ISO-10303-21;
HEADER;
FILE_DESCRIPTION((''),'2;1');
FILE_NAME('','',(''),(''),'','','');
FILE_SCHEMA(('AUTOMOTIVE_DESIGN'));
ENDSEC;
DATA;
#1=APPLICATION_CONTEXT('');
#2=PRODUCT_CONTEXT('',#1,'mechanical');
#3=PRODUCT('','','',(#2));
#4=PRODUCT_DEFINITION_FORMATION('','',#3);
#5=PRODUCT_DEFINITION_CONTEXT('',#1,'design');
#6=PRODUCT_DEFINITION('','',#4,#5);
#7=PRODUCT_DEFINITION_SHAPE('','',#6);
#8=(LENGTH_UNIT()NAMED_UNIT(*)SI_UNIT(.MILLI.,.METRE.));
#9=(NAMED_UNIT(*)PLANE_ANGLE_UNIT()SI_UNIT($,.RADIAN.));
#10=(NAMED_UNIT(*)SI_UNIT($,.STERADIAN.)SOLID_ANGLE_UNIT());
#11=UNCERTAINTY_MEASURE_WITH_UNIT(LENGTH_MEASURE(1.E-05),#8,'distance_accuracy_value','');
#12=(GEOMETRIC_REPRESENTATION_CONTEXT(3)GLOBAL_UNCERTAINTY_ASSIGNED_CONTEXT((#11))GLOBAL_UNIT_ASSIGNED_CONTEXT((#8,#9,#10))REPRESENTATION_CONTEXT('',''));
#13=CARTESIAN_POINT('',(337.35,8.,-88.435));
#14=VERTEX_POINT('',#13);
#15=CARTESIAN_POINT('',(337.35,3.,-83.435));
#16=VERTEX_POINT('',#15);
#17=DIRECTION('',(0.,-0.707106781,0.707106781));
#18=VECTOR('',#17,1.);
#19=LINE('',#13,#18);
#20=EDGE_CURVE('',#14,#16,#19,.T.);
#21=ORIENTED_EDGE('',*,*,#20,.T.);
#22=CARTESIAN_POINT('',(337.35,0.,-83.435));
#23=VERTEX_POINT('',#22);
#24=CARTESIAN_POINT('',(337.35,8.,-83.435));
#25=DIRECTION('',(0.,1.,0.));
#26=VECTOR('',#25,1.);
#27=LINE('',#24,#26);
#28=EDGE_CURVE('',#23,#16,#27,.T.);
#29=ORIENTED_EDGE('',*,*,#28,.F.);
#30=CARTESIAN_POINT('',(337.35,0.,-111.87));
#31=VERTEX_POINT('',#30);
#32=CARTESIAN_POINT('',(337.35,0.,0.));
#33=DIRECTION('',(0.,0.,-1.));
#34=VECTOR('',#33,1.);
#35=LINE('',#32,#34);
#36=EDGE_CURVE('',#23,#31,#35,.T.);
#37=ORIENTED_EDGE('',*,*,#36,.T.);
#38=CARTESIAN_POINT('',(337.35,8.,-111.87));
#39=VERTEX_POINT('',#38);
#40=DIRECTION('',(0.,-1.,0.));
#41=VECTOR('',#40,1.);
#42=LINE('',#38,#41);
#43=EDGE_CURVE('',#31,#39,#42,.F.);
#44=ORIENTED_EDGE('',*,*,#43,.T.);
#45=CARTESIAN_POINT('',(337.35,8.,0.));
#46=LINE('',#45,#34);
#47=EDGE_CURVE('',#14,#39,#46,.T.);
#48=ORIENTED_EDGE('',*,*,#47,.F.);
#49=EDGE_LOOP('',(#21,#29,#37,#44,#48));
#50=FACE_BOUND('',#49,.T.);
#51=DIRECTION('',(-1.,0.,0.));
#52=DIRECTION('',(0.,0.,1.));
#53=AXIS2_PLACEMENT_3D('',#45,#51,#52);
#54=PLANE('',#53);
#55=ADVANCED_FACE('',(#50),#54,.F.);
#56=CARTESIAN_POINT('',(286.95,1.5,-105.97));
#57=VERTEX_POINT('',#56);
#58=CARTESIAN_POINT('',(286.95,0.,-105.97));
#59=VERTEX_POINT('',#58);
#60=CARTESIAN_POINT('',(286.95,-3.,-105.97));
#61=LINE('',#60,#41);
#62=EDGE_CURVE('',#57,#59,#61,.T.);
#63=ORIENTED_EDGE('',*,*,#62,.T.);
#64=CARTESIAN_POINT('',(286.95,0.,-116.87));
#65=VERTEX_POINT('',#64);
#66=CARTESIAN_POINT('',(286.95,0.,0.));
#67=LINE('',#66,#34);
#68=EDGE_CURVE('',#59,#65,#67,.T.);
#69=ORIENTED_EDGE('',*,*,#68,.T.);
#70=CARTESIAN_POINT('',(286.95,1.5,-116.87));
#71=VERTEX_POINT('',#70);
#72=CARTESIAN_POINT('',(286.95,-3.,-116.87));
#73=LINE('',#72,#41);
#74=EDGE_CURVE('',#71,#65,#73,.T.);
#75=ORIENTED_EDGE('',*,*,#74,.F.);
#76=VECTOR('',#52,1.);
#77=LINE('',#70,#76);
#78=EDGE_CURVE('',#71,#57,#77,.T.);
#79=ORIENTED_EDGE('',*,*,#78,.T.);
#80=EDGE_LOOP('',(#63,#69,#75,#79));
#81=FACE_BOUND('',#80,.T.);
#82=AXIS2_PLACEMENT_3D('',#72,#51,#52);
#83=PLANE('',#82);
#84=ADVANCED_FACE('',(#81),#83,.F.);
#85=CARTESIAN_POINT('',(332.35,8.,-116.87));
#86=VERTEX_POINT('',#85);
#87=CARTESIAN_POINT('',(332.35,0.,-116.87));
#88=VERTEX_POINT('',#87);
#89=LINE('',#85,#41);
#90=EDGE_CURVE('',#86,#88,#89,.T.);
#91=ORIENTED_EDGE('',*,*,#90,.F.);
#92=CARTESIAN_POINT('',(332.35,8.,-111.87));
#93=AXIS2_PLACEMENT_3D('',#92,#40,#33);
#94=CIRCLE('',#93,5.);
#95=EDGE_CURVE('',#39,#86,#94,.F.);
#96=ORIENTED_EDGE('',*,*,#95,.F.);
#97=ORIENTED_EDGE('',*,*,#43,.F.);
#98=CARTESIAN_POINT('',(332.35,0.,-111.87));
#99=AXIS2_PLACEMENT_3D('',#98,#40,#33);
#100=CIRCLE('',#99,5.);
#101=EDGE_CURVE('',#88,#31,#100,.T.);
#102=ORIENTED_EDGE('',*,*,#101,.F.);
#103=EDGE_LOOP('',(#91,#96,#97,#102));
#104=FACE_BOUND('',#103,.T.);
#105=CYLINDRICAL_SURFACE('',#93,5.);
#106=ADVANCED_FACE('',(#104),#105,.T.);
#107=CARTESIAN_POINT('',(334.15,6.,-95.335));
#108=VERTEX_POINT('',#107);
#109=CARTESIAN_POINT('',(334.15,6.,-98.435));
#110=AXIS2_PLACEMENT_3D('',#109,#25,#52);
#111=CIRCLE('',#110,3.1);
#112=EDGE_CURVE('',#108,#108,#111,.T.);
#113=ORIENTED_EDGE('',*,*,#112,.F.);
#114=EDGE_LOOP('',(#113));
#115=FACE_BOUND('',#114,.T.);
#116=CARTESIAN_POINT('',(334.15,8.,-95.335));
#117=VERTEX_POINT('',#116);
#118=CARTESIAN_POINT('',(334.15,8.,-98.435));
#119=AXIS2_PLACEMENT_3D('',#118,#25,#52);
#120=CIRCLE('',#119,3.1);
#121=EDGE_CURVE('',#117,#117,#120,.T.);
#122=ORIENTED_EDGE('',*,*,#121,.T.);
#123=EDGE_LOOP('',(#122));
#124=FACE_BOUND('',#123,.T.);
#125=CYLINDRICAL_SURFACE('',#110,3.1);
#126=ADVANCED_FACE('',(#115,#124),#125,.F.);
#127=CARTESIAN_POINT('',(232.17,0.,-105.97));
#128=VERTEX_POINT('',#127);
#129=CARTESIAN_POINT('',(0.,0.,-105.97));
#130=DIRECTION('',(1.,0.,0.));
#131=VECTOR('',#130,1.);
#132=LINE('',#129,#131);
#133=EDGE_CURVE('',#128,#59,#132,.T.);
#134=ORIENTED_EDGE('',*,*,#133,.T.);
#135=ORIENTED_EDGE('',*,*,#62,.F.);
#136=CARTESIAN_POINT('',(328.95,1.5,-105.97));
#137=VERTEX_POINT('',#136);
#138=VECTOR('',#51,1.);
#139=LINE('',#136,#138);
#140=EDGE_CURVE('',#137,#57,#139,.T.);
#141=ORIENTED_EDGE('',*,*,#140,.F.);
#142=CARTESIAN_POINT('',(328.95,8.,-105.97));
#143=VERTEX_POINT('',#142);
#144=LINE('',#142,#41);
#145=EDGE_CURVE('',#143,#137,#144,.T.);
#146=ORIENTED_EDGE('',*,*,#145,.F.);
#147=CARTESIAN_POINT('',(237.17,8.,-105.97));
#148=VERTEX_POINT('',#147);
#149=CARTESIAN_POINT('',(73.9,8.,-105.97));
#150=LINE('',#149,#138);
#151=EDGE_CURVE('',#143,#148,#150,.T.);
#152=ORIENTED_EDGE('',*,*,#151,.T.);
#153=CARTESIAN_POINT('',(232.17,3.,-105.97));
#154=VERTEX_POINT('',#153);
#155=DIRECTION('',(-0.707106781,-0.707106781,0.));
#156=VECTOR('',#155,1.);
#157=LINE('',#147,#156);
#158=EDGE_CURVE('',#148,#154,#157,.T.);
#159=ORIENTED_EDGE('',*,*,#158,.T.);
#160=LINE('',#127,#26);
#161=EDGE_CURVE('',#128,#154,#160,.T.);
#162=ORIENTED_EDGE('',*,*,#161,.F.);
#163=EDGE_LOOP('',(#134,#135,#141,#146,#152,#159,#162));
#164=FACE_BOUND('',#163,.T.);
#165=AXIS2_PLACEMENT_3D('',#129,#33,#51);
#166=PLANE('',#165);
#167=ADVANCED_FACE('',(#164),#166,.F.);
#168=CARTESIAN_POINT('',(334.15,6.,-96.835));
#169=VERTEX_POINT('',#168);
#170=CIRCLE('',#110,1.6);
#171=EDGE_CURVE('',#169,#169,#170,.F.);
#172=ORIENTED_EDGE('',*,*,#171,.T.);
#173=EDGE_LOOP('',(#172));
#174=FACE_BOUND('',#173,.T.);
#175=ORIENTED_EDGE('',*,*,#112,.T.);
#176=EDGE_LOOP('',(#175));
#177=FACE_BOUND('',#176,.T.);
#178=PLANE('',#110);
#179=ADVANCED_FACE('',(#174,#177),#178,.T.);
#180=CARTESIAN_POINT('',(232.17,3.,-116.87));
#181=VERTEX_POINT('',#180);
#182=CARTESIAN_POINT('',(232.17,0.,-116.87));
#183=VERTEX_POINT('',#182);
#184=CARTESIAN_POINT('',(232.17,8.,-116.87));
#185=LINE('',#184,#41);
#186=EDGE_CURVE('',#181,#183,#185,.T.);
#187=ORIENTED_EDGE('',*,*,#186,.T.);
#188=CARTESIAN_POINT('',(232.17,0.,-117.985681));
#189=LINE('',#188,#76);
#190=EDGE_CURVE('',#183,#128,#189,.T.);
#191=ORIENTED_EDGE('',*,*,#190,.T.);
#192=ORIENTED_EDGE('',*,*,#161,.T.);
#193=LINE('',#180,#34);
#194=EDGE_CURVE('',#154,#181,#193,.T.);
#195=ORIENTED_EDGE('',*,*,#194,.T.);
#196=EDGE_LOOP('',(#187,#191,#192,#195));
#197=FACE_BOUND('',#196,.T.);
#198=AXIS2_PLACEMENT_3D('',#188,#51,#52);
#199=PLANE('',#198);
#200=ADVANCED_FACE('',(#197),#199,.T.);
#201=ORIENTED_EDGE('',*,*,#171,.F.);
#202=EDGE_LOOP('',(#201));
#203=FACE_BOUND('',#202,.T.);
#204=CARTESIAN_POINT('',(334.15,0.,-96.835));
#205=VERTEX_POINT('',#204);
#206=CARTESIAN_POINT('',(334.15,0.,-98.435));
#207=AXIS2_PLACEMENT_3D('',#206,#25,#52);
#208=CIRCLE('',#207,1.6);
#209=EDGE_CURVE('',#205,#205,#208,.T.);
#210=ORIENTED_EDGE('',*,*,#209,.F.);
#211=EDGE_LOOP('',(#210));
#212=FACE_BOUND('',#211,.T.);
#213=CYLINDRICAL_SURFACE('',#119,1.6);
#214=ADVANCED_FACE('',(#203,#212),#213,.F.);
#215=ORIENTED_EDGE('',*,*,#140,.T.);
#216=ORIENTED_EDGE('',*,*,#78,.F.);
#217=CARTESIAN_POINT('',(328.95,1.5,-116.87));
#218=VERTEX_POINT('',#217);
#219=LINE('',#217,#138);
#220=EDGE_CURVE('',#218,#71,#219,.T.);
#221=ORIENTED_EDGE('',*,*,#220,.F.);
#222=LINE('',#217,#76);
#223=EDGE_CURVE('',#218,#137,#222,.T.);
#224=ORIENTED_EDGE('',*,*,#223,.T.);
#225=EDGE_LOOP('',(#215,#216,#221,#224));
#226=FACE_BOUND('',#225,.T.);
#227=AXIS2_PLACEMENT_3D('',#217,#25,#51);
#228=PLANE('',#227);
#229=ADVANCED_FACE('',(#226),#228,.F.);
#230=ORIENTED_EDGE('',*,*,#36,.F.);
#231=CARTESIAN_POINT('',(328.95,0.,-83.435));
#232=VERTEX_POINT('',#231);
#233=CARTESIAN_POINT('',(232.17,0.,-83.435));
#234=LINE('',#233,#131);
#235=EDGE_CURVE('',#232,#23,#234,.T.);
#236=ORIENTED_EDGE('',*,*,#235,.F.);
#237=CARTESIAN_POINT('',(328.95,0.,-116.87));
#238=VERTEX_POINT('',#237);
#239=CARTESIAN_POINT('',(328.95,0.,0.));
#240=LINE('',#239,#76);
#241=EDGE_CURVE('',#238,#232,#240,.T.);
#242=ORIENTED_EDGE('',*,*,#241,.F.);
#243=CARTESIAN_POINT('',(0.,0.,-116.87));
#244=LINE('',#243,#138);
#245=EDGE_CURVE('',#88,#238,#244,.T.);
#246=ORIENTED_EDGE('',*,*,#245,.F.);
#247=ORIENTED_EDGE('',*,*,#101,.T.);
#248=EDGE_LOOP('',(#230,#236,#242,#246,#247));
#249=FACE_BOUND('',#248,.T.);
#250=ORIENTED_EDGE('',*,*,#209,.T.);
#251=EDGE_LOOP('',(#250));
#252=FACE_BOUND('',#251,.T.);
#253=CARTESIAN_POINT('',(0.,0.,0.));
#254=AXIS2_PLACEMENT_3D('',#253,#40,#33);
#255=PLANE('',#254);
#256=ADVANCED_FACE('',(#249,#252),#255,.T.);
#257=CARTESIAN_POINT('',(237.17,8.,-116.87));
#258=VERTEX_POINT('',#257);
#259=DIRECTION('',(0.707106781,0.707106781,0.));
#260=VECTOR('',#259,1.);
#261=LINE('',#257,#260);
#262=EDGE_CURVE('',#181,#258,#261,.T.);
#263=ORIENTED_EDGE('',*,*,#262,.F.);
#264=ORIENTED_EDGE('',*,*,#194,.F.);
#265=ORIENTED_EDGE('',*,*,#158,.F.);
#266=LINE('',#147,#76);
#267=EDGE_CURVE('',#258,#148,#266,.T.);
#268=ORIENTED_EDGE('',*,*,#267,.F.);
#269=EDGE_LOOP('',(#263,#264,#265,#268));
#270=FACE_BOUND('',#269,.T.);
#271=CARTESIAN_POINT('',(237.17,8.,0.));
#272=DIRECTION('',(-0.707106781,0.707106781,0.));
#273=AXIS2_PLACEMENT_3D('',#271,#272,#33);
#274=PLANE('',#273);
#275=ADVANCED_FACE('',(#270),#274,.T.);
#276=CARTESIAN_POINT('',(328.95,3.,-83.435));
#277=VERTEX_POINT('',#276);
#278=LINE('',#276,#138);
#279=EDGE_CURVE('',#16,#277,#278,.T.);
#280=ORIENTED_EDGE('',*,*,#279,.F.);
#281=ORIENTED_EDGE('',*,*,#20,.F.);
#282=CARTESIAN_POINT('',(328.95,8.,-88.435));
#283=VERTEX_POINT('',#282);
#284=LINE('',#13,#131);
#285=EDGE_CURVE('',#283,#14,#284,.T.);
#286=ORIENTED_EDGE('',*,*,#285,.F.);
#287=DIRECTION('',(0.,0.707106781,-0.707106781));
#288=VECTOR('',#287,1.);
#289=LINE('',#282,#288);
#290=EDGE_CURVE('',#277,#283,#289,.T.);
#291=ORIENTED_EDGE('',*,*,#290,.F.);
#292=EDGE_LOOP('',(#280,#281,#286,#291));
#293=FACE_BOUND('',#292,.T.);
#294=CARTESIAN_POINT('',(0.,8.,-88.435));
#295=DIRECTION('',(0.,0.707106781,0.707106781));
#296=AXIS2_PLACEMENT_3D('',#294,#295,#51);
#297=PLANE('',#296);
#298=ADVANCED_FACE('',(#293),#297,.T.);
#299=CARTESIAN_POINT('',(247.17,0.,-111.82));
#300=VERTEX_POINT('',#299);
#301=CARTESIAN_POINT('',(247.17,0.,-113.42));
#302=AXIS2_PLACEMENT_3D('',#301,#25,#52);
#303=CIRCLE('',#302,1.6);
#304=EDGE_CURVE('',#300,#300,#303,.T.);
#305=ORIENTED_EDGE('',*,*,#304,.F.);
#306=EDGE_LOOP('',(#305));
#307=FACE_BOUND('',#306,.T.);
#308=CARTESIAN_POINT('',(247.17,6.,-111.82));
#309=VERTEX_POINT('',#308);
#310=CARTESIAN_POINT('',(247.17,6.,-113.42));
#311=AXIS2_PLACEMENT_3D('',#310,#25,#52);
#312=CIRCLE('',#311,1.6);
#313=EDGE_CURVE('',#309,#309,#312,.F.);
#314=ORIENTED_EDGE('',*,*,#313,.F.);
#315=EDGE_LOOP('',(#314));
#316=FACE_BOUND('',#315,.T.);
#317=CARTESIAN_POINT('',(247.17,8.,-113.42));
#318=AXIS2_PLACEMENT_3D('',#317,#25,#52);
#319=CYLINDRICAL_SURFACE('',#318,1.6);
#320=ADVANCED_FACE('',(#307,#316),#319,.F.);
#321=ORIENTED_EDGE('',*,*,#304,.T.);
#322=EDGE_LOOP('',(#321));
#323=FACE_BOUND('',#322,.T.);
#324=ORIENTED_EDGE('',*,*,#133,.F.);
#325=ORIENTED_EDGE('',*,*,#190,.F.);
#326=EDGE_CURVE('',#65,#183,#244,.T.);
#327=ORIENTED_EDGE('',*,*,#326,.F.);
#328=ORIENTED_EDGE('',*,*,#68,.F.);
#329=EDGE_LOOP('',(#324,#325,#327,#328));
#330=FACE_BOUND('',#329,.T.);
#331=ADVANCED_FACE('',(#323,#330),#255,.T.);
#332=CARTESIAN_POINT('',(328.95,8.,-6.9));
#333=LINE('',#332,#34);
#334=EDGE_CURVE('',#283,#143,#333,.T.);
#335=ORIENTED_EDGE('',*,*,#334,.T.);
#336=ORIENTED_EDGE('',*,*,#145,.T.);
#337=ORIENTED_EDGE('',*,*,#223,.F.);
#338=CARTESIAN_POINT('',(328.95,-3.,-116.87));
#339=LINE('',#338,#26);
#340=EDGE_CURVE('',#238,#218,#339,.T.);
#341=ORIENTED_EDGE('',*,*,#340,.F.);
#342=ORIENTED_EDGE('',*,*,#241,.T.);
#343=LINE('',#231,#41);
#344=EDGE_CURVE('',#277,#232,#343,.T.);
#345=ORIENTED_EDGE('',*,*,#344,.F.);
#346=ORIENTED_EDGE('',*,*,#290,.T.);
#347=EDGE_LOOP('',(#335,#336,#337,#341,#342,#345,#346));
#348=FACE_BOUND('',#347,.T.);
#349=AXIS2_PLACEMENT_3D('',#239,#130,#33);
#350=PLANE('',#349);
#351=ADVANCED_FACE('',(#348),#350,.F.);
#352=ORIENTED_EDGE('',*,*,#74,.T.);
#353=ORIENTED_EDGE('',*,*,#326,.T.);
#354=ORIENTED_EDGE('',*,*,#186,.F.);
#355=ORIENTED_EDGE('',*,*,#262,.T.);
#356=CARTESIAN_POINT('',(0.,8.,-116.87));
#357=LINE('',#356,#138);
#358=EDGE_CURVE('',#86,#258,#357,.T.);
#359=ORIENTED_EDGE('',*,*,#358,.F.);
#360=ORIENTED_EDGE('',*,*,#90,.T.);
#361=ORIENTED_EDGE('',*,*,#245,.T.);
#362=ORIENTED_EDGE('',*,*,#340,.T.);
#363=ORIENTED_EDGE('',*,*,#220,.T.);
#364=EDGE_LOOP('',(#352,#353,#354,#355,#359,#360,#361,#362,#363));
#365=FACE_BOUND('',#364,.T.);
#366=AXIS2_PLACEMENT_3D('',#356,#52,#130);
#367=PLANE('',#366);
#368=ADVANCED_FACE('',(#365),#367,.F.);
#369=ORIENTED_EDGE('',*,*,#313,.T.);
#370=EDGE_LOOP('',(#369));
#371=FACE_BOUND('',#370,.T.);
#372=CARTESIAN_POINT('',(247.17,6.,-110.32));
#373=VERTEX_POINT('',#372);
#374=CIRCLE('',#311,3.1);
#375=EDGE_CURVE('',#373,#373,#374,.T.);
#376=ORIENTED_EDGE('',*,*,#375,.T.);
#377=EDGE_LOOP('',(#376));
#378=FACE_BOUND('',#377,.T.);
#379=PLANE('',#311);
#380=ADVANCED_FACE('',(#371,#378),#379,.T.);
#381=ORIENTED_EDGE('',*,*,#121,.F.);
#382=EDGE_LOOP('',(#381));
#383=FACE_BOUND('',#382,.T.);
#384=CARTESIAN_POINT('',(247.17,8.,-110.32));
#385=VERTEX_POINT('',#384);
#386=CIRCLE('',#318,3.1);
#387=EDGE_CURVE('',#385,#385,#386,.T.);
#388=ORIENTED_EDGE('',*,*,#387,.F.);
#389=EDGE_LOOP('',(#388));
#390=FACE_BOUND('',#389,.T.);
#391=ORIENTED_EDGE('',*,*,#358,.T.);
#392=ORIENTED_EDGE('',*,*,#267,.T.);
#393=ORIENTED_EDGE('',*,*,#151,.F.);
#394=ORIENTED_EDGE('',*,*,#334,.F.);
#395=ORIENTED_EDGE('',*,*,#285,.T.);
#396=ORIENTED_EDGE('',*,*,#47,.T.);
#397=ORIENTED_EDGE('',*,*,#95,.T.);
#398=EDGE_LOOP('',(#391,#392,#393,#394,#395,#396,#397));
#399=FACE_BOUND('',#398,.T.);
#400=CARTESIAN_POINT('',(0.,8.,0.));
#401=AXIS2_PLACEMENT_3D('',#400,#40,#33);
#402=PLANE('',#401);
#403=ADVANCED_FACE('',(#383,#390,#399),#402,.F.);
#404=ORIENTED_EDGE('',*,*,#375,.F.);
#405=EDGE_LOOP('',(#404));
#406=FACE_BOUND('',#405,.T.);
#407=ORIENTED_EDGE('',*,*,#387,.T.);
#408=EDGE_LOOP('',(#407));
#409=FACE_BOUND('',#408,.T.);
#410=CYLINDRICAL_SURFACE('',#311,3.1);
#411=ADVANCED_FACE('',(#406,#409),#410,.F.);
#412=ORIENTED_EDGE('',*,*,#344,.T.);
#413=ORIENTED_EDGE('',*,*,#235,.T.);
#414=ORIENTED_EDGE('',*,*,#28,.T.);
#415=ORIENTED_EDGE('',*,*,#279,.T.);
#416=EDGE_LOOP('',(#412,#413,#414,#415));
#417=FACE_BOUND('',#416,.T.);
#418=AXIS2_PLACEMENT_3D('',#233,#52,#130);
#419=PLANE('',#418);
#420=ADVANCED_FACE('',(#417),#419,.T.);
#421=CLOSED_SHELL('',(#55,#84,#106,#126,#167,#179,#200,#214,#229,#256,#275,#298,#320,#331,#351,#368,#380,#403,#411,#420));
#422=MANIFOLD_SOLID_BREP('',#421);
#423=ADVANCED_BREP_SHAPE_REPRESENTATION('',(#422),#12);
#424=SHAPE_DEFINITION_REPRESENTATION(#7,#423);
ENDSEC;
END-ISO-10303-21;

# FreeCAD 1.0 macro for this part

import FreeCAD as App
import Part
import Sketcher
from FreeCAD import Vector


def edges_at(feature, points):
    """Names of the edges that pass closest to the given points."""
    edges = feature.Shape.Edges
    near = lambda p: min(range(len(edges)), key=lambda i: edges[i].distToShape(Part.Vertex(*p))[0])
    return sorted({f"Edge{near(p) + 1}" for p in points})


def add_polygon(sketch, points):
    """Adds a closed chain of lines whose ends are joined by coincident constraints."""
    first, n = sketch.GeometryCount, len(points)
    for a, b in zip(points, points[1:] + points[:1]):
        sketch.addGeometry(Part.LineSegment(App.Vector(*a, 0), App.Vector(*b, 0)), False)
    for i in range(n):
        sketch.addConstraint(Sketcher.Constraint("Coincident", first + i, 2, first + (i + 1) % n, 1))

doc = App.newDocument("Part")
body = doc.addObject("PartDesign::Body", "Body")

# Sketch on XZ plane
sketch1 = body.newObject("Sketcher::SketchObject", "Sketch")
sketch1.AttachmentSupport = (doc.getObject("XZ_Plane"), [""])
sketch1.MapMode = "FlatFace"
add_polygon(sketch1, [(0, -117), (0, 0), (337, 0), (337, -117)])  # lines 0-3
add_polygon(sketch1, [(331, -7), (7, -7), (7, -110), (331, -110)])  # lines 4-7
sketch1.addConstraint(Sketcher.Constraint("Vertical", 0))
sketch1.addConstraint(Sketcher.Constraint("Horizontal", 1))
sketch1.addConstraint(Sketcher.Constraint("Vertical", 2))
sketch1.addConstraint(Sketcher.Constraint("Horizontal", 3))
sketch1.addConstraint(Sketcher.Constraint("Horizontal", 4))
sketch1.addConstraint(Sketcher.Constraint("Vertical", 5))
sketch1.addConstraint(Sketcher.Constraint("Horizontal", 6))
sketch1.addConstraint(Sketcher.Constraint("Vertical", 7))
sketch1.addConstraint(Sketcher.Constraint("Coincident", 0, 2, -1, 1))
sketch1.addConstraint(Sketcher.Constraint("DistanceX", 1, 1, 1, 2, 337.35))
sketch1.addConstraint(Sketcher.Constraint("DistanceX", 4, 2, 4, 1, 324.05))
sketch1.addConstraint(Sketcher.Constraint("DistanceY", 0, 1, 0, 2, 116.87))
sketch1.addConstraint(Sketcher.Constraint("DistanceY", 5, 2, 5, 1, 103.07))
sketch1.addConstraint(Sketcher.Constraint("DistanceX", -1, 1, 4, 2, 6.9))
sketch1.addConstraint(Sketcher.Constraint("DistanceY", 4, 2, -1, 1, 6.9))
pad1 = body.newObject("PartDesign::Pad", "Pad")
pad1.Profile = sketch1
pad1.Length = 8
pad1.Reversed = True
doc.recompute()

fillet = body.newObject("PartDesign::Fillet", "Fillet")
fillet.Base = (pad1, edges_at(pad1, [
    (0, 4, -116.87),
    (337.35, 4, -116.87),
    (337.35, 4, 0),
    (0, 4, 0),
]))
fillet.Radius = 5

# Sketch on XZ plane
sketch2 = body.newObject("Sketcher::SketchObject", "Sketch001")
sketch2.AttachmentSupport = (doc.getObject("XZ_Plane"), [""])
sketch2.MapMode = "FlatFace"
sketch2.AttachmentOffset = App.Placement(Vector(0, 0, -8), App.Rotation())
sketch2.addGeometry(Part.Circle(Vector(3.5, -98.4, 0), Vector(0, 0, 1), 1.6), False)
sketch2.addGeometry(Part.Circle(Vector(87.2, -113.4, 0), Vector(0, 0, 1), 1.6), False)
sketch2.addGeometry(Part.Circle(Vector(247.2, -113.4, 0), Vector(0, 0, 1), 1.6), False)
sketch2.addGeometry(Part.Circle(Vector(334.1, -98.4, 0), Vector(0, 0, 1), 1.6), False)
sketch2.addGeometry(Part.Circle(Vector(334.1, -18.4, 0), Vector(0, 0, 1), 1.6), False)
sketch2.addGeometry(Part.Circle(Vector(247.2, -3.5, 0), Vector(0, 0, 1), 1.6), False)
sketch2.addGeometry(Part.Circle(Vector(87.2, -3.5, 0), Vector(0, 0, 1), 1.6), False)
sketch2.addGeometry(Part.Circle(Vector(3.5, -18.4, 0), Vector(0, 0, 1), 1.6), False)
sketch2.addConstraint(Sketcher.Constraint("Equal", 0, 1))
sketch2.addConstraint(Sketcher.Constraint("Equal", 1, 2))
sketch2.addConstraint(Sketcher.Constraint("Equal", 2, 3))
sketch2.addConstraint(Sketcher.Constraint("Equal", 3, 4))
sketch2.addConstraint(Sketcher.Constraint("Equal", 4, 5))
sketch2.addConstraint(Sketcher.Constraint("Equal", 5, 6))
sketch2.addConstraint(Sketcher.Constraint("Equal", 6, 7))
sketch2.addConstraint(Sketcher.Constraint("Horizontal", 1, 3, 2, 3))
sketch2.addConstraint(Sketcher.Constraint("Horizontal", 0, 3, 3, 3))
sketch2.addConstraint(Sketcher.Constraint("Horizontal", 5, 3, 6, 3))
sketch2.addConstraint(Sketcher.Constraint("Horizontal", 4, 3, 7, 3))
sketch2.addConstraint(Sketcher.Constraint("Vertical", 3, 3, 4, 3))
sketch2.addConstraint(Sketcher.Constraint("Vertical", 2, 3, 5, 3))
sketch2.addConstraint(Sketcher.Constraint("Vertical", 1, 3, 6, 3))
sketch2.addConstraint(Sketcher.Constraint("Vertical", 0, 3, 7, 3))
sketch2.addConstraint(Sketcher.Constraint("Diameter", 0, 3.2))
sketch2.addConstraint(Sketcher.Constraint("DistanceX", 1, 3, 2, 3, 160.0))
sketch2.addConstraint(Sketcher.Constraint("DistanceY", 3, 3, 4, 3, 80.0))
sketch2.addConstraint(Sketcher.Constraint("DistanceX", 0, 3, 3, 3, 330.7))
sketch2.addConstraint(Sketcher.Constraint("DistanceX", -1, 1, 0, 3, 3.45))
sketch2.addConstraint(Sketcher.Constraint("DistanceX", -1, 1, 1, 3, 87.17))
sketch2.addConstraint(Sketcher.Constraint("DistanceY", 1, 3, -1, 1, 113.42))
sketch2.addConstraint(Sketcher.Constraint("DistanceY", 5, 3, -1, 1, 3.45))
sketch2.addConstraint(Sketcher.Constraint("DistanceY", 0, 3, -1, 1, 98.435))
doc.recompute()
hole = body.newObject("PartDesign::Hole", "Hole")
hole.Profile = sketch2
hole.ThreadType = "None"
hole.Diameter = 3.2
hole.DepthType = "ThroughAll"
hole.Reversed = True

# Sketch on XY plane
sketch3 = body.newObject("Sketcher::SketchObject", "Sketch002")
sketch3.AttachmentSupport = (doc.getObject("XY_Plane"), [""])
sketch3.MapMode = "FlatFace"
sketch3.AttachmentOffset = App.Placement(Vector(0, 0, -109.97), App.Rotation())
add_polygon(sketch3, [(41.9, 1.5), (41.9, 0), (73.9, 0), (73.9, 1.5)])  # lines 0-3
sketch3.addConstraint(Sketcher.Constraint("Vertical", 0))
sketch3.addConstraint(Sketcher.Constraint("Horizontal", 1))
sketch3.addConstraint(Sketcher.Constraint("Vertical", 2))
sketch3.addConstraint(Sketcher.Constraint("Horizontal", 3))
sketch3.addConstraint(Sketcher.Constraint("PointOnObject", 0, 2, -1))
sketch3.addConstraint(Sketcher.Constraint("DistanceX", 1, 1, 1, 2, 32.0))
sketch3.addConstraint(Sketcher.Constraint("DistanceY", 0, 2, 0, 1, 1.5))
sketch3.addConstraint(Sketcher.Constraint("DistanceX", -1, 1, 0, 2, 41.9))
pocket1 = body.newObject("PartDesign::Pocket", "Pocket")
pocket1.Profile = sketch3
pocket1.Type = "ThroughAll"

# Sketch on XY plane
sketch4 = body.newObject("Sketcher::SketchObject", "Sketch003")
sketch4.AttachmentSupport = (doc.getObject("XY_Plane"), [""])
sketch4.MapMode = "FlatFace"
sketch4.AttachmentOffset = App.Placement(Vector(0, 0, -109.97), App.Rotation())
add_polygon(sketch4, [(38.9, 8), (38.9, 0), (41.9, 0), (41.9, 8)])  # lines 0-3
sketch4.addConstraint(Sketcher.Constraint("Vertical", 0))
sketch4.addConstraint(Sketcher.Constraint("Horizontal", 1))
sketch4.addConstraint(Sketcher.Constraint("Vertical", 2))
sketch4.addConstraint(Sketcher.Constraint("Horizontal", 3))
sketch4.addConstraint(Sketcher.Constraint("PointOnObject", 0, 2, -1))
sketch4.addConstraint(Sketcher.Constraint("DistanceX", 1, 1, 1, 2, 3.0))
sketch4.addConstraint(Sketcher.Constraint("DistanceY", 0, 2, 0, 1, 8.0))
sketch4.addConstraint(Sketcher.Constraint("DistanceX", -1, 1, 0, 2, 38.9))
pad2 = body.newObject("PartDesign::Pad", "Pad001")
pad2.Profile = sketch4
pad2.Type = "UpToFirst"

# Sketch on XY plane
sketch5 = body.newObject("Sketcher::SketchObject", "Sketch004")
sketch5.AttachmentSupport = (doc.getObject("XY_Plane"), [""])
sketch5.MapMode = "FlatFace"
sketch5.AttachmentOffset = App.Placement(Vector(0, 0, -109.97), App.Rotation())
add_polygon(sketch5, [(74, 8), (74, 0), (331, 0), (331, 8)])  # lines 0-3
sketch5.addConstraint(Sketcher.Constraint("Vertical", 0))
sketch5.addConstraint(Sketcher.Constraint("Horizontal", 1))
sketch5.addConstraint(Sketcher.Constraint("Vertical", 2))
sketch5.addConstraint(Sketcher.Constraint("Horizontal", 3))
sketch5.addConstraint(Sketcher.Constraint("PointOnObject", 0, 2, -1))
sketch5.addConstraint(Sketcher.Constraint("DistanceY", 0, 2, 0, 1, 8.0))
sketch5.addConstraint(Sketcher.Constraint("DistanceX", 1, 1, 1, 2, 257.05))
sketch5.addConstraint(Sketcher.Constraint("DistanceX", -1, 1, 0, 2, 73.9))
pad3 = body.newObject("PartDesign::Pad", "Pad002")
pad3.Profile = sketch5
pad3.Length = 4

# Sketch on XZ plane
sketch6 = body.newObject("Sketcher::SketchObject", "Sketch005")
sketch6.AttachmentSupport = (doc.getObject("XZ_Plane"), [""])
sketch6.MapMode = "FlatFace"
add_polygon(sketch6, [(73.9, -106), (73.9, -110), (330.9, -110), (330.9, -106)])  # lines 0-3
sketch6.addConstraint(Sketcher.Constraint("Vertical", 0))
sketch6.addConstraint(Sketcher.Constraint("Horizontal", 1))
sketch6.addConstraint(Sketcher.Constraint("Vertical", 2))
sketch6.addConstraint(Sketcher.Constraint("Horizontal", 3))
sketch6.addConstraint(Sketcher.Constraint("DistanceY", 0, 2, 0, 1, 4.0))
sketch6.addConstraint(Sketcher.Constraint("DistanceX", 1, 1, 1, 2, 257.05))
sketch6.addConstraint(Sketcher.Constraint("DistanceX", -1, 1, 0, 2, 73.9))
sketch6.addConstraint(Sketcher.Constraint("DistanceY", 0, 2, -1, 1, 109.97))
pad4 = body.newObject("PartDesign::Pad", "Pad003")
pad4.Profile = sketch6
pad4.Length = 3

# Sketch on YZ plane
sketch7 = body.newObject("Sketcher::SketchObject", "Sketch006")
sketch7.AttachmentSupport = (doc.getObject("YZ_Plane"), [""])
sketch7.MapMode = "FlatFace"
sketch7.AttachmentOffset = App.Placement(Vector(0, 0, 330.95), App.Rotation())
add_polygon(sketch7, [(8, -106), (-3, -106), (-3, -7), (8, -7)])  # lines 0-3
sketch7.addConstraint(Sketcher.Constraint("Horizontal", 0))
sketch7.addConstraint(Sketcher.Constraint("Vertical", 1))
sketch7.addConstraint(Sketcher.Constraint("Horizontal", 2))
sketch7.addConstraint(Sketcher.Constraint("Vertical", 3))
sketch7.addConstraint(Sketcher.Constraint("DistanceX", 0, 2, 0, 1, 11.0))
sketch7.addConstraint(Sketcher.Constraint("DistanceX", 0, 2, -1, 1, 3.0))
sketch7.addConstraint(Sketcher.Constraint("DistanceY", 1, 1, 1, 2, 99.07))
sketch7.addConstraint(Sketcher.Constraint("DistanceY", 1, 2, -1, 1, 6.9))
pad5 = body.newObject("PartDesign::Pad", "Pad004")
pad5.Profile = sketch7
pad5.Length = 2
pad5.Reversed = True

# Sketch on XY plane
sketch8 = body.newObject("Sketcher::SketchObject", "Sketch007")
sketch8.AttachmentSupport = (doc.getObject("XY_Plane"), [""])
sketch8.MapMode = "FlatFace"
sketch8.AttachmentOffset = App.Placement(Vector(0, 0, -105.97), App.Rotation())
add_polygon(sketch8, [(286.9, 1.5), (286.9, -3), (328.9, -3), (328.9, 1.5)])  # lines 0-3
sketch8.addConstraint(Sketcher.Constraint("Vertical", 0))
sketch8.addConstraint(Sketcher.Constraint("Horizontal", 1))
sketch8.addConstraint(Sketcher.Constraint("Vertical", 2))
sketch8.addConstraint(Sketcher.Constraint("Horizontal", 3))
sketch8.addConstraint(Sketcher.Constraint("DistanceX", 1, 1, 1, 2, 42.0))
sketch8.addConstraint(Sketcher.Constraint("DistanceY", 0, 2, 0, 1, 4.5))
sketch8.addConstraint(Sketcher.Constraint("DistanceY", 0, 2, -1, 1, 3.0))
sketch8.addConstraint(Sketcher.Constraint("DistanceX", -1, 1, 0, 2, 286.95))
pocket2 = body.newObject("PartDesign::Pocket", "Pocket001")
pocket2.Profile = sketch8
pocket2.Type = "ThroughAll"

# Sketch on XY plane
sketch9 = body.newObject("Sketcher::SketchObject", "Sketch008")
sketch9.AttachmentSupport = (doc.getObject("XY_Plane"), [""])
sketch9.MapMode = "FlatFace"
sketch9.AttachmentOffset = App.Placement(Vector(0, 0, -6.9), App.Rotation())
add_polygon(sketch9, [(233.9, 1.5), (233.9, 0), (112.5, 0), (112.5, 1.5)])  # lines 0-3
sketch9.addConstraint(Sketcher.Constraint("Vertical", 0))
sketch9.addConstraint(Sketcher.Constraint("Horizontal", 1))
sketch9.addConstraint(Sketcher.Constraint("Vertical", 2))
sketch9.addConstraint(Sketcher.Constraint("Horizontal", 3))
sketch9.addConstraint(Sketcher.Constraint("PointOnObject", 0, 2, -1))
sketch9.addConstraint(Sketcher.Constraint("DistanceX", 1, 2, 1, 1, 121.5))
sketch9.addConstraint(Sketcher.Constraint("DistanceY", 0, 2, 0, 1, 1.5))
sketch9.addConstraint(Sketcher.Constraint("DistanceX", -1, 1, 0, 2, 233.95))
pocket3 = body.newObject("PartDesign::Pocket", "Pocket002")
pocket3.Profile = sketch9
pocket3.Type = "ThroughAll"
pocket3.Reversed = True

# Sketch on XY plane
sketch10 = body.newObject("Sketcher::SketchObject", "Sketch009")
sketch10.AttachmentSupport = (doc.getObject("XY_Plane"), [""])
sketch10.MapMode = "FlatFace"
sketch10.AttachmentOffset = App.Placement(Vector(0, 0, -109.97), App.Rotation())
add_polygon(sketch10, [(42, 8), (42, 2), (74, 2), (74, 8)])  # lines 0-3
sketch10.addConstraint(Sketcher.Constraint("Vertical", 0))
sketch10.addConstraint(Sketcher.Constraint("Horizontal", 1))
sketch10.addConstraint(Sketcher.Constraint("Vertical", 2))
sketch10.addConstraint(Sketcher.Constraint("Horizontal", 3))
sketch10.addConstraint(Sketcher.Constraint("DistanceX", 1, 1, 1, 2, 32.0))
sketch10.addConstraint(Sketcher.Constraint("DistanceY", 0, 2, 0, 1, 6.5))
sketch10.addConstraint(Sketcher.Constraint("DistanceY", -1, 1, 2, 2, 8.0))
sketch10.addConstraint(Sketcher.Constraint("DistanceX", -1, 1, 0, 2, 41.9))
pad6 = body.newObject("PartDesign::Pad", "Pad005")
pad6.Profile = sketch10
pad6.Length = 4

# Sketch on YZ plane
sketch11 = body.newObject("Sketcher::SketchObject", "Sketch010")
sketch11.AttachmentSupport = (doc.getObject("YZ_Plane"), [""])
sketch11.MapMode = "FlatFace"
sketch11.AttachmentOffset = App.Placement(Vector(0, 0, 330.95), App.Rotation())
add_polygon(sketch11, [(0, -6.9), (-3, -6.9), (-3, -110), (0, -110)])  # lines 0-3
sketch11.addConstraint(Sketcher.Constraint("Horizontal", 0))
sketch11.addConstraint(Sketcher.Constraint("Vertical", 1))
sketch11.addConstraint(Sketcher.Constraint("Horizontal", 2))
sketch11.addConstraint(Sketcher.Constraint("Vertical", 3))
sketch11.addConstraint(Sketcher.Constraint("PointOnObject", 2, 2, -2))
sketch11.addConstraint(Sketcher.Constraint("DistanceX", 0, 2, 0, 1, 3.0))
sketch11.addConstraint(Sketcher.Constraint("DistanceY", 1, 2, 1, 1, 103.07))
sketch11.addConstraint(Sketcher.Constraint("DistanceY", 0, 2, -1, 1, 6.9))
pocket4 = body.newObject("PartDesign::Pocket", "Pocket003")
pocket4.Profile = sketch11
pocket4.Length = 0.1

# Sketch on XY plane
sketch12 = body.newObject("Sketcher::SketchObject", "Sketch011")
sketch12.AttachmentSupport = (doc.getObject("XY_Plane"), [""])
sketch12.MapMode = "FlatFace"
sketch12.AttachmentOffset = App.Placement(Vector(0, 0, -6.9), App.Rotation())
add_polygon(sketch12, [(233.9, 0), (233.9, 1.5), (112.5, 1.5), (112.5, 0), (41.9, 0), (41.9, 8), (328.9, 8), (328.9, 0)])  # lines 0-7
sketch12.addConstraint(Sketcher.Constraint("Vertical", 0))
sketch12.addConstraint(Sketcher.Constraint("Horizontal", 1))
sketch12.addConstraint(Sketcher.Constraint("Vertical", 2))
sketch12.addConstraint(Sketcher.Constraint("Horizontal", 3))
sketch12.addConstraint(Sketcher.Constraint("Vertical", 4))
sketch12.addConstraint(Sketcher.Constraint("Horizontal", 5))
sketch12.addConstraint(Sketcher.Constraint("Vertical", 6))
sketch12.addConstraint(Sketcher.Constraint("Horizontal", 7))
sketch12.addConstraint(Sketcher.Constraint("PointOnObject", 2, 2, -1))
sketch12.addConstraint(Sketcher.Constraint("PointOnObject", 6, 2, -1))
sketch12.addConstraint(Sketcher.Constraint("DistanceX", 7, 2, 7, 1, 95.0))
sketch12.addConstraint(Sketcher.Constraint("DistanceY", 4, 1, 4, 2, 8.0))
sketch12.addConstraint(Sketcher.Constraint("DistanceX", 1, 2, 1, 1, 121.5))
sketch12.addConstraint(Sketcher.Constraint("DistanceY", 0, 1, 0, 2, 1.5))
sketch12.addConstraint(Sketcher.Constraint("DistanceX", 3, 2, 3, 1, 70.55))
sketch12.addConstraint(Sketcher.Constraint("DistanceX", -1, 1, 3, 2, 41.9))
pad7 = body.newObject("PartDesign::Pad", "Pad006")
pad7.Profile = sketch12
pad7.Length = 2
pad7.Reversed = True

# Sketch on XZ plane
sketch13 = body.newObject("Sketcher::SketchObject", "Sketch012")
sketch13.AttachmentSupport = (doc.getObject("XZ_Plane"), [""])
sketch13.MapMode = "FlatFace"
add_polygon(sketch13, [(41.9, -6.9), (41.9, -8.9), (112.5, -8.9), (112.5, -6.9)])  # lines 0-3
add_polygon(sketch13, [(233.9, -6.9), (233.9, -8.9), (328.9, -8.9), (328.9, -6.9)])  # lines 4-7
sketch13.addConstraint(Sketcher.Constraint("Vertical", 0))
sketch13.addConstraint(Sketcher.Constraint("Horizontal", 1))
sketch13.addConstraint(Sketcher.Constraint("Vertical", 2))
sketch13.addConstraint(Sketcher.Constraint("Horizontal", 3))
sketch13.addConstraint(Sketcher.Constraint("Vertical", 4))
sketch13.addConstraint(Sketcher.Constraint("Horizontal", 5))
sketch13.addConstraint(Sketcher.Constraint("Vertical", 6))
sketch13.addConstraint(Sketcher.Constraint("Horizontal", 7))
sketch13.addConstraint(Sketcher.Constraint("Horizontal", 1, 2, 4, 2))
sketch13.addConstraint(Sketcher.Constraint("Horizontal", 3, 2, 6, 2))
sketch13.addConstraint(Sketcher.Constraint("DistanceX", 5, 1, 5, 2, 95.0))
sketch13.addConstraint(Sketcher.Constraint("DistanceY", 0, 2, 0, 1, 2.0))
sketch13.addConstraint(Sketcher.Constraint("DistanceX", 1, 1, 1, 2, 70.55))
sketch13.addConstraint(Sketcher.Constraint("DistanceX", -1, 1, 0, 2, 41.9))
sketch13.addConstraint(Sketcher.Constraint("DistanceY", 0, 2, -1, 1, 8.9))
sketch13.addConstraint(Sketcher.Constraint("DistanceX", 1, 2, 4, 2, 121.5))
pad8 = body.newObject("PartDesign::Pad", "Pad007")
pad8.Profile = sketch13
pad8.Length = 3

# Sketch on XZ plane
sketch14 = body.newObject("Sketcher::SketchObject", "Sketch013")
sketch14.AttachmentSupport = (doc.getObject("XZ_Plane"), [""])
sketch14.MapMode = "FlatFace"
sketch14.AttachmentOffset = App.Placement(Vector(0, 0, 3), App.Rotation())
sketch14.addGeometry(Part.Circle(Vector(92.1, -9.5, 0), Vector(0, 0, 1), 3.5), False)
sketch14.addGeometry(Part.Circle(Vector(262.3, -9.5, 0), Vector(0, 0, 1), 3.5), False)
sketch14.addGeometry(Part.Circle(Vector(328.3, -13.3, 0), Vector(0, 0, 1), 3.5), False)
sketch14.addGeometry(Part.Circle(Vector(328.3, -74.3, 0), Vector(0, 0, 1), 3.5), False)
sketch14.addGeometry(Part.Circle(Vector(137.8, -107.3, 0), Vector(0, 0, 1), 3.5), False)
sketch14.addGeometry(Part.Circle(Vector(22.2, -9.5, 0), Vector(0, 0, 1), 3.5), False)
sketch14.addGeometry(Part.Circle(Vector(9.5, -23.5, 0), Vector(0, 0, 1), 3.5), False)
sketch14.addGeometry(Part.Circle(Vector(9.5, -103.5, 0), Vector(0, 0, 1), 3.5), False)
sketch14.addConstraint(Sketcher.Constraint("Equal", 0, 1))
sketch14.addConstraint(Sketcher.Constraint("Equal", 1, 2))
sketch14.addConstraint(Sketcher.Constraint("Equal", 2, 3))
sketch14.addConstraint(Sketcher.Constraint("Equal", 3, 4))
sketch14.addConstraint(Sketcher.Constraint("Equal", 4, 5))
sketch14.addConstraint(Sketcher.Constraint("Equal", 5, 6))
sketch14.addConstraint(Sketcher.Constraint("Equal", 6, 7))
sketch14.addConstraint(Sketcher.Constraint("Horizontal", 0, 3, 1, 3))
sketch14.addConstraint(Sketcher.Constraint("Horizontal", 1, 3, 5, 3))
sketch14.addConstraint(Sketcher.Constraint("Vertical", 2, 3, 3, 3))
sketch14.addConstraint(Sketcher.Constraint("Vertical", 6, 3, 7, 3))
sketch14.addConstraint(Sketcher.Constraint("Diameter", 0, 7.0))
sketch14.addConstraint(Sketcher.Constraint("DistanceX", 4, 3, 3, 3, 190.5))
sketch14.addConstraint(Sketcher.Constraint("DistanceX", 6, 3, 5, 3, 12.7))
sketch14.addConstraint(Sketcher.Constraint("DistanceY", 0, 3, -1, 1, 9.54))
sketch14.addConstraint(Sketcher.Constraint("DistanceY", 2, 3, -1, 1, 13.35))
sketch14.addConstraint(Sketcher.Constraint("DistanceY", 3, 3, -1, 1, 74.31))
sketch14.addConstraint(Sketcher.Constraint("DistanceY", 4, 3, -1, 1, 107.33))
sketch14.addConstraint(Sketcher.Constraint("DistanceY", 6, 3, -1, 1, 23.51))
sketch14.addConstraint(Sketcher.Constraint("DistanceY", 7, 3, -1, 1, 103.52))
sketch14.addConstraint(Sketcher.Constraint("DistanceX", 0, 3, 1, 3, 170.18))
sketch14.addConstraint(Sketcher.Constraint("DistanceX", 1, 3, 2, 3, 66.04))
sketch14.addConstraint(Sketcher.Constraint("DistanceX", 5, 3, 0, 3, 69.85))
sketch14.addConstraint(Sketcher.Constraint("DistanceX", -1, 1, 0, 3, 92.088456))
pocket5 = body.newObject("PartDesign::Pocket", "Pocket004")
pocket5.Profile = sketch14
pocket5.Length = 4

# Sketch on XZ plane
sketch15 = body.newObject("Sketcher::SketchObject", "Sketch014")
sketch15.AttachmentSupport = (doc.getObject("XZ_Plane"), [""])
sketch15.MapMode = "FlatFace"
sketch15.AttachmentOffset = App.Placement(Vector(0, 0, -8), App.Rotation())
sketch15.addGeometry(Part.Circle(Vector(87.2, -113.4, 0), Vector(0, 0, 1), 3.1), False)
sketch15.addGeometry(Part.Circle(Vector(247.2, -113.4, 0), Vector(0, 0, 1), 3.1), False)
sketch15.addGeometry(Part.Circle(Vector(334.1, -98.4, 0), Vector(0, 0, 1), 3.1), False)
sketch15.addGeometry(Part.Circle(Vector(334.1, -18.4, 0), Vector(0, 0, 1), 3.1), False)
sketch15.addGeometry(Part.Circle(Vector(247.2, -3.5, 0), Vector(0, 0, 1), 3.1), False)
sketch15.addGeometry(Part.Circle(Vector(87.2, -3.5, 0), Vector(0, 0, 1), 3.1), False)
sketch15.addGeometry(Part.Circle(Vector(3.5, -18.4, 0), Vector(0, 0, 1), 3.1), False)
sketch15.addGeometry(Part.Circle(Vector(3.5, -98.4, 0), Vector(0, 0, 1), 3.1), False)
sketch15.addConstraint(Sketcher.Constraint("Equal", 0, 1))
sketch15.addConstraint(Sketcher.Constraint("Equal", 1, 2))
sketch15.addConstraint(Sketcher.Constraint("Equal", 2, 3))
sketch15.addConstraint(Sketcher.Constraint("Equal", 3, 4))
sketch15.addConstraint(Sketcher.Constraint("Equal", 4, 5))
sketch15.addConstraint(Sketcher.Constraint("Equal", 5, 6))
sketch15.addConstraint(Sketcher.Constraint("Equal", 6, 7))
sketch15.addConstraint(Sketcher.Constraint("Horizontal", 0, 3, 1, 3))
sketch15.addConstraint(Sketcher.Constraint("Horizontal", 4, 3, 5, 3))
sketch15.addConstraint(Sketcher.Constraint("Horizontal", 3, 3, 6, 3))
sketch15.addConstraint(Sketcher.Constraint("Horizontal", 2, 3, 7, 3))
sketch15.addConstraint(Sketcher.Constraint("Vertical", 2, 3, 3, 3))
sketch15.addConstraint(Sketcher.Constraint("Vertical", 1, 3, 4, 3))
sketch15.addConstraint(Sketcher.Constraint("Vertical", 0, 3, 5, 3))
sketch15.addConstraint(Sketcher.Constraint("Vertical", 6, 3, 7, 3))
sketch15.addConstraint(Sketcher.Constraint("Diameter", 0, 6.2))
sketch15.addConstraint(Sketcher.Constraint("DistanceX", 0, 3, 1, 3, 160.0))
sketch15.addConstraint(Sketcher.Constraint("DistanceY", 2, 3, 3, 3, 80.0))
sketch15.addConstraint(Sketcher.Constraint("DistanceX", 6, 3, 3, 3, 330.7))
sketch15.addConstraint(Sketcher.Constraint("DistanceX", -1, 1, 0, 3, 87.17))
sketch15.addConstraint(Sketcher.Constraint("DistanceY", 0, 3, -1, 1, 113.42))
sketch15.addConstraint(Sketcher.Constraint("DistanceX", -1, 1, 2, 3, 334.15))
sketch15.addConstraint(Sketcher.Constraint("DistanceY", 4, 3, -1, 1, 3.45))
sketch15.addConstraint(Sketcher.Constraint("DistanceY", 2, 3, -1, 1, 98.435))
pocket6 = body.newObject("PartDesign::Pocket", "Pocket005")
pocket6.Profile = sketch15
pocket6.Length = 2
pocket6.Reversed = True

# Sketch on XZ plane
sketch16 = body.newObject("Sketcher::SketchObject", "Sketch015")
sketch16.AttachmentSupport = (doc.getObject("XZ_Plane"), [""])
sketch16.MapMode = "FlatFace"
sketch16.AttachmentOffset = App.Placement(Vector(0, 0, -4), App.Rotation())
add_polygon(sketch16, [(6.9, -110), (6.9, -104), (12.9, -104), (12.9, -110)])  # lines 0-3
sketch16.addGeometry(Part.Circle(Vector(9.9, -107, 0), Vector(0, 0, 1), 1.5), False)  # 4
add_polygon(sketch16, [(32.9, -110), (32.9, -104), (38.9, -104), (38.9, -110)])  # lines 5-8
sketch16.addGeometry(Part.Circle(Vector(35.9, -107, 0), Vector(0, 0, 1), 1.5), False)  # 9
add_polygon(sketch16, [(6.9, -12.9), (6.9, -6.9), (12.9, -6.9), (12.9, -12.9)])  # lines 10-13
sketch16.addGeometry(Part.Circle(Vector(9.9, -9.9, 0), Vector(0, 0, 1), 1.5), False)  # 14
add_polygon(sketch16, [(32.9, -12.9), (32.9, -6.9), (38.9, -6.9), (38.9, -12.9)])  # lines 15-18
sketch16.addGeometry(Part.Circle(Vector(35.9, -9.9, 0), Vector(0, 0, 1), 1.5), False)  # 19
sketch16.addConstraint(Sketcher.Constraint("Vertical", 0))
sketch16.addConstraint(Sketcher.Constraint("Horizontal", 1))
sketch16.addConstraint(Sketcher.Constraint("Vertical", 2))
sketch16.addConstraint(Sketcher.Constraint("Horizontal", 3))
sketch16.addConstraint(Sketcher.Constraint("Vertical", 5))
sketch16.addConstraint(Sketcher.Constraint("Horizontal", 6))
sketch16.addConstraint(Sketcher.Constraint("Vertical", 7))
sketch16.addConstraint(Sketcher.Constraint("Horizontal", 8))
sketch16.addConstraint(Sketcher.Constraint("Vertical", 10))
sketch16.addConstraint(Sketcher.Constraint("Horizontal", 11))
sketch16.addConstraint(Sketcher.Constraint("Vertical", 12))
sketch16.addConstraint(Sketcher.Constraint("Horizontal", 13))
sketch16.addConstraint(Sketcher.Constraint("Vertical", 15))
sketch16.addConstraint(Sketcher.Constraint("Horizontal", 16))
sketch16.addConstraint(Sketcher.Constraint("Vertical", 17))
sketch16.addConstraint(Sketcher.Constraint("Horizontal", 18))
sketch16.addConstraint(Sketcher.Constraint("Equal", 4, 9))
sketch16.addConstraint(Sketcher.Constraint("Equal", 9, 14))
sketch16.addConstraint(Sketcher.Constraint("Equal", 14, 19))
sketch16.addConstraint(Sketcher.Constraint("Horizontal", 4, 3, 9, 3))
sketch16.addConstraint(Sketcher.Constraint("Horizontal", 14, 3, 19, 3))
sketch16.addConstraint(Sketcher.Constraint("Horizontal", 1, 2, 5, 2))
sketch16.addConstraint(Sketcher.Constraint("Horizontal", 3, 2, 7, 2))
sketch16.addConstraint(Sketcher.Constraint("Horizontal", 11, 2, 15, 2))
sketch16.addConstraint(Sketcher.Constraint("Horizontal", 13, 2, 17, 2))
sketch16.addConstraint(Sketcher.Constraint("Vertical", 4, 3, 14, 3))
sketch16.addConstraint(Sketcher.Constraint("Vertical", 9, 3, 19, 3))
sketch16.addConstraint(Sketcher.Constraint("Vertical", 3, 2, 10, 2))
sketch16.addConstraint(Sketcher.Constraint("Vertical", 2, 2, 11, 2))
sketch16.addConstraint(Sketcher.Constraint("Vertical", 8, 2, 15, 2))
sketch16.addConstraint(Sketcher.Constraint("Vertical", 7, 2, 16, 2))
sketch16.addConstraint(Sketcher.Constraint("Equal", 3, 6))
sketch16.addConstraint(Sketcher.Constraint("Equal", 18, 0))
sketch16.addConstraint(Sketcher.Constraint("Equal", 7, 10))
sketch16.addConstraint(Sketcher.Constraint("Diameter", 4, 3.0))
sketch16.addConstraint(Sketcher.Constraint("DistanceX", 1, 1, 1, 2, 6.0))
sketch16.addConstraint(Sketcher.Constraint("DistanceX", 4, 3, 9, 3, 26.0))
sketch16.addConstraint(Sketcher.Constraint("DistanceX", 0, 2, 4, 3, 3.0))
sketch16.addConstraint(Sketcher.Constraint("DistanceY", 4, 3, 0, 2, 3.0))
sketch16.addConstraint(Sketcher.Constraint("DistanceX", 5, 2, 9, 3, 3.0))
sketch16.addConstraint(Sketcher.Constraint("DistanceY", 14, 3, 10, 2, 3.0))
sketch16.addConstraint(Sketcher.Constraint("DistanceX", -1, 1, 4, 3, 9.9))
sketch16.addConstraint(Sketcher.Constraint("DistanceY", 14, 3, -1, 1, 9.9))
sketch16.addConstraint(Sketcher.Constraint("DistanceY", 4, 3, -1, 1, 106.97))
pad9 = body.newObject("PartDesign::Pad", "Pad008")
pad9.Profile = sketch16
pad9.Type = "TwoLengths"
pad9.Length = 2
pad9.Length2 = 3
pad9.Reversed = True

# Sketch on YZ plane
sketch17 = body.newObject("Sketcher::SketchObject", "Sketch016")
sketch17.AttachmentSupport = (doc.getObject("YZ_Plane"), [""])
sketch17.MapMode = "FlatFace"
add_polygon(sketch17, [(1.5, -68.4), (0, -68.4), (0, -43.4), (1.5, -43.4)])  # lines 0-3
sketch17.addConstraint(Sketcher.Constraint("Horizontal", 0))
sketch17.addConstraint(Sketcher.Constraint("Vertical", 1))
sketch17.addConstraint(Sketcher.Constraint("Horizontal", 2))
sketch17.addConstraint(Sketcher.Constraint("Vertical", 3))
sketch17.addConstraint(Sketcher.Constraint("PointOnObject", 0, 2, -2))
sketch17.addConstraint(Sketcher.Constraint("DistanceY", 1, 1, 1, 2, 25.0))
sketch17.addConstraint(Sketcher.Constraint("DistanceX", 0, 2, 0, 1, 1.5))
sketch17.addConstraint(Sketcher.Constraint("DistanceY", 0, 2, -1, 1, 68.435))
pocket7 = body.newObject("PartDesign::Pocket", "Pocket006")
pocket7.Profile = sketch17
pocket7.Length = 6.9
pocket7.Reversed = True

# Sketch on YZ plane
sketch18 = body.newObject("Sketcher::SketchObject", "Sketch017")
sketch18.AttachmentSupport = (doc.getObject("YZ_Plane"), [""])
sketch18.MapMode = "FlatFace"
sketch18.AttachmentOffset = App.Placement(Vector(0, 0, 337.35), App.Rotation())
add_polygon(sketch18, [(0, -6.9), (-3, -6.9), (-3, -110), (0, -110)])  # lines 0-3
sketch18.addConstraint(Sketcher.Constraint("Horizontal", 0))
sketch18.addConstraint(Sketcher.Constraint("Vertical", 1))
sketch18.addConstraint(Sketcher.Constraint("Horizontal", 2))
sketch18.addConstraint(Sketcher.Constraint("Vertical", 3))
sketch18.addConstraint(Sketcher.Constraint("PointOnObject", 2, 2, -2))
sketch18.addConstraint(Sketcher.Constraint("DistanceX", 0, 2, 0, 1, 3.0))
sketch18.addConstraint(Sketcher.Constraint("DistanceY", 1, 2, 1, 1, 103.07))
sketch18.addConstraint(Sketcher.Constraint("DistanceY", 0, 2, -1, 1, 6.9))
pocket8 = body.newObject("PartDesign::Pocket", "Pocket007")
pocket8.Profile = sketch18
pocket8.Type = "ThroughAll"

# Sketch on XZ plane
sketch19 = body.newObject("Sketcher::SketchObject", "Sketch018")
sketch19.AttachmentSupport = (doc.getObject("XZ_Plane"), [""])
sketch19.MapMode = "FlatFace"
sketch19.AttachmentOffset = App.Placement(Vector(0, 0, -8), App.Rotation())
add_polygon(sketch19, [(-29, -160), (-29, 43), (438, 43), (438, -160)])  # lines 0-3
add_polygon(sketch19, [(346, -83), (232, -83), (232, -118), (346, -118)])  # lines 4-7
sketch19.addConstraint(Sketcher.Constraint("Vertical", 0))
sketch19.addConstraint(Sketcher.Constraint("Horizontal", 1))
sketch19.addConstraint(Sketcher.Constraint("Vertical", 2))
sketch19.addConstraint(Sketcher.Constraint("Horizontal", 3))
sketch19.addConstraint(Sketcher.Constraint("Horizontal", 4))
sketch19.addConstraint(Sketcher.Constraint("Vertical", 5))
sketch19.addConstraint(Sketcher.Constraint("Horizontal", 6))
sketch19.addConstraint(Sketcher.Constraint("Vertical", 7))
sketch19.addConstraint(Sketcher.Constraint("DistanceX", -1, 1, 4, 2, 232.17))
sketch19.addConstraint(Sketcher.Constraint("DistanceY", 4, 2, -1, 1, 83.435))
sketch19.addConstraint(Sketcher.Constraint("DistanceX", 1, 1, 1, 2, 466.496249))
sketch19.addConstraint(Sketcher.Constraint("DistanceY", 5, 2, 5, 1, 34.550681))
sketch19.addConstraint(Sketcher.Constraint("DistanceX", 4, 2, 4, 1, 113.515173))
sketch19.addConstraint(Sketcher.Constraint("DistanceY", 0, 1, 0, 2, 203.631856))
sketch19.addConstraint(Sketcher.Constraint("DistanceY", 2, 2, -1, 1, 160.275531))
sketch19.addConstraint(Sketcher.Constraint("DistanceX", 6, 2, 2, 2, 92.107122))
pocket9 = body.newObject("PartDesign::Pocket", "Pocket008")
pocket9.Profile = sketch19
pocket9.Type = "ThroughAll"
pocket9.Reversed = True
doc.recompute()

chamfer = body.newObject("PartDesign::Chamfer", "Chamfer")
chamfer.Base = (pocket9, edges_at(pocket9, [(333.15, 8, -83.435), (232.17, 8, -111.42)]))
chamfer.Size = 5

doc.recompute()
